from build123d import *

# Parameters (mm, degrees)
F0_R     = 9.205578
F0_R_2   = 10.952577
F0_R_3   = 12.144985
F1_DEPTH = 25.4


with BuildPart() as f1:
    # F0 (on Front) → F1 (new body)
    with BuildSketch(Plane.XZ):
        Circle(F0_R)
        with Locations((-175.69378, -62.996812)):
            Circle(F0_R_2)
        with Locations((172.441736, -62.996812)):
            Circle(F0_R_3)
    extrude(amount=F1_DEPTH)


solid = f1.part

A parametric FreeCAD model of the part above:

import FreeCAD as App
import Part
import Sketcher

V = App.Vector
Q = App.Units.Quantity

doc = App.newDocument("Part")
body = doc.addObject("PartDesign::Body", "Body")
body.AllowCompound = True

sketch1 = body.newObject("Sketcher::SketchObject", "Sketch")
sketch1.AttachmentSupport = (doc.getObject("XZ_Plane"), [""])
sketch1.MapMode = "FlatFace"
sketch1.addGeometry([
    Part.Circle(V(0, 0, 0), V(0, 0, 1), 9),
    Part.Circle(V(-176, -63, 0), V(0, 0, 1), 11),
    Part.Circle(V(172, -63, 0), V(0, 0, 1), 12),
], False)
sketch1.addConstraint([
    Sketcher.Constraint("Coincident", 0, 3, -1, 1),
    Sketcher.Constraint("Horizontal", 1, 3, 2, 3),
    Sketcher.Constraint("Diameter", 2, Q("24.28997 mm")),
    Sketcher.Constraint("Diameter", 0, Q("18.411156 mm")),
    Sketcher.Constraint("Diameter", 1, Q("21.905154 mm")),
    Sketcher.Constraint("DistanceX", 1, 3, -1, 1, Q("175.69378 mm")),
    Sketcher.Constraint("DistanceY", 1, 3, -1, 1, Q("62.996812 mm")),
    Sketcher.Constraint("DistanceX", -1, 1, 2, 3, Q("172.441736 mm")),
])
pad1 = body.newObject("PartDesign::Pad", "Pad")
pad1.Profile = sketch1
pad1.Length = Q("1 in")

doc.recompute()
